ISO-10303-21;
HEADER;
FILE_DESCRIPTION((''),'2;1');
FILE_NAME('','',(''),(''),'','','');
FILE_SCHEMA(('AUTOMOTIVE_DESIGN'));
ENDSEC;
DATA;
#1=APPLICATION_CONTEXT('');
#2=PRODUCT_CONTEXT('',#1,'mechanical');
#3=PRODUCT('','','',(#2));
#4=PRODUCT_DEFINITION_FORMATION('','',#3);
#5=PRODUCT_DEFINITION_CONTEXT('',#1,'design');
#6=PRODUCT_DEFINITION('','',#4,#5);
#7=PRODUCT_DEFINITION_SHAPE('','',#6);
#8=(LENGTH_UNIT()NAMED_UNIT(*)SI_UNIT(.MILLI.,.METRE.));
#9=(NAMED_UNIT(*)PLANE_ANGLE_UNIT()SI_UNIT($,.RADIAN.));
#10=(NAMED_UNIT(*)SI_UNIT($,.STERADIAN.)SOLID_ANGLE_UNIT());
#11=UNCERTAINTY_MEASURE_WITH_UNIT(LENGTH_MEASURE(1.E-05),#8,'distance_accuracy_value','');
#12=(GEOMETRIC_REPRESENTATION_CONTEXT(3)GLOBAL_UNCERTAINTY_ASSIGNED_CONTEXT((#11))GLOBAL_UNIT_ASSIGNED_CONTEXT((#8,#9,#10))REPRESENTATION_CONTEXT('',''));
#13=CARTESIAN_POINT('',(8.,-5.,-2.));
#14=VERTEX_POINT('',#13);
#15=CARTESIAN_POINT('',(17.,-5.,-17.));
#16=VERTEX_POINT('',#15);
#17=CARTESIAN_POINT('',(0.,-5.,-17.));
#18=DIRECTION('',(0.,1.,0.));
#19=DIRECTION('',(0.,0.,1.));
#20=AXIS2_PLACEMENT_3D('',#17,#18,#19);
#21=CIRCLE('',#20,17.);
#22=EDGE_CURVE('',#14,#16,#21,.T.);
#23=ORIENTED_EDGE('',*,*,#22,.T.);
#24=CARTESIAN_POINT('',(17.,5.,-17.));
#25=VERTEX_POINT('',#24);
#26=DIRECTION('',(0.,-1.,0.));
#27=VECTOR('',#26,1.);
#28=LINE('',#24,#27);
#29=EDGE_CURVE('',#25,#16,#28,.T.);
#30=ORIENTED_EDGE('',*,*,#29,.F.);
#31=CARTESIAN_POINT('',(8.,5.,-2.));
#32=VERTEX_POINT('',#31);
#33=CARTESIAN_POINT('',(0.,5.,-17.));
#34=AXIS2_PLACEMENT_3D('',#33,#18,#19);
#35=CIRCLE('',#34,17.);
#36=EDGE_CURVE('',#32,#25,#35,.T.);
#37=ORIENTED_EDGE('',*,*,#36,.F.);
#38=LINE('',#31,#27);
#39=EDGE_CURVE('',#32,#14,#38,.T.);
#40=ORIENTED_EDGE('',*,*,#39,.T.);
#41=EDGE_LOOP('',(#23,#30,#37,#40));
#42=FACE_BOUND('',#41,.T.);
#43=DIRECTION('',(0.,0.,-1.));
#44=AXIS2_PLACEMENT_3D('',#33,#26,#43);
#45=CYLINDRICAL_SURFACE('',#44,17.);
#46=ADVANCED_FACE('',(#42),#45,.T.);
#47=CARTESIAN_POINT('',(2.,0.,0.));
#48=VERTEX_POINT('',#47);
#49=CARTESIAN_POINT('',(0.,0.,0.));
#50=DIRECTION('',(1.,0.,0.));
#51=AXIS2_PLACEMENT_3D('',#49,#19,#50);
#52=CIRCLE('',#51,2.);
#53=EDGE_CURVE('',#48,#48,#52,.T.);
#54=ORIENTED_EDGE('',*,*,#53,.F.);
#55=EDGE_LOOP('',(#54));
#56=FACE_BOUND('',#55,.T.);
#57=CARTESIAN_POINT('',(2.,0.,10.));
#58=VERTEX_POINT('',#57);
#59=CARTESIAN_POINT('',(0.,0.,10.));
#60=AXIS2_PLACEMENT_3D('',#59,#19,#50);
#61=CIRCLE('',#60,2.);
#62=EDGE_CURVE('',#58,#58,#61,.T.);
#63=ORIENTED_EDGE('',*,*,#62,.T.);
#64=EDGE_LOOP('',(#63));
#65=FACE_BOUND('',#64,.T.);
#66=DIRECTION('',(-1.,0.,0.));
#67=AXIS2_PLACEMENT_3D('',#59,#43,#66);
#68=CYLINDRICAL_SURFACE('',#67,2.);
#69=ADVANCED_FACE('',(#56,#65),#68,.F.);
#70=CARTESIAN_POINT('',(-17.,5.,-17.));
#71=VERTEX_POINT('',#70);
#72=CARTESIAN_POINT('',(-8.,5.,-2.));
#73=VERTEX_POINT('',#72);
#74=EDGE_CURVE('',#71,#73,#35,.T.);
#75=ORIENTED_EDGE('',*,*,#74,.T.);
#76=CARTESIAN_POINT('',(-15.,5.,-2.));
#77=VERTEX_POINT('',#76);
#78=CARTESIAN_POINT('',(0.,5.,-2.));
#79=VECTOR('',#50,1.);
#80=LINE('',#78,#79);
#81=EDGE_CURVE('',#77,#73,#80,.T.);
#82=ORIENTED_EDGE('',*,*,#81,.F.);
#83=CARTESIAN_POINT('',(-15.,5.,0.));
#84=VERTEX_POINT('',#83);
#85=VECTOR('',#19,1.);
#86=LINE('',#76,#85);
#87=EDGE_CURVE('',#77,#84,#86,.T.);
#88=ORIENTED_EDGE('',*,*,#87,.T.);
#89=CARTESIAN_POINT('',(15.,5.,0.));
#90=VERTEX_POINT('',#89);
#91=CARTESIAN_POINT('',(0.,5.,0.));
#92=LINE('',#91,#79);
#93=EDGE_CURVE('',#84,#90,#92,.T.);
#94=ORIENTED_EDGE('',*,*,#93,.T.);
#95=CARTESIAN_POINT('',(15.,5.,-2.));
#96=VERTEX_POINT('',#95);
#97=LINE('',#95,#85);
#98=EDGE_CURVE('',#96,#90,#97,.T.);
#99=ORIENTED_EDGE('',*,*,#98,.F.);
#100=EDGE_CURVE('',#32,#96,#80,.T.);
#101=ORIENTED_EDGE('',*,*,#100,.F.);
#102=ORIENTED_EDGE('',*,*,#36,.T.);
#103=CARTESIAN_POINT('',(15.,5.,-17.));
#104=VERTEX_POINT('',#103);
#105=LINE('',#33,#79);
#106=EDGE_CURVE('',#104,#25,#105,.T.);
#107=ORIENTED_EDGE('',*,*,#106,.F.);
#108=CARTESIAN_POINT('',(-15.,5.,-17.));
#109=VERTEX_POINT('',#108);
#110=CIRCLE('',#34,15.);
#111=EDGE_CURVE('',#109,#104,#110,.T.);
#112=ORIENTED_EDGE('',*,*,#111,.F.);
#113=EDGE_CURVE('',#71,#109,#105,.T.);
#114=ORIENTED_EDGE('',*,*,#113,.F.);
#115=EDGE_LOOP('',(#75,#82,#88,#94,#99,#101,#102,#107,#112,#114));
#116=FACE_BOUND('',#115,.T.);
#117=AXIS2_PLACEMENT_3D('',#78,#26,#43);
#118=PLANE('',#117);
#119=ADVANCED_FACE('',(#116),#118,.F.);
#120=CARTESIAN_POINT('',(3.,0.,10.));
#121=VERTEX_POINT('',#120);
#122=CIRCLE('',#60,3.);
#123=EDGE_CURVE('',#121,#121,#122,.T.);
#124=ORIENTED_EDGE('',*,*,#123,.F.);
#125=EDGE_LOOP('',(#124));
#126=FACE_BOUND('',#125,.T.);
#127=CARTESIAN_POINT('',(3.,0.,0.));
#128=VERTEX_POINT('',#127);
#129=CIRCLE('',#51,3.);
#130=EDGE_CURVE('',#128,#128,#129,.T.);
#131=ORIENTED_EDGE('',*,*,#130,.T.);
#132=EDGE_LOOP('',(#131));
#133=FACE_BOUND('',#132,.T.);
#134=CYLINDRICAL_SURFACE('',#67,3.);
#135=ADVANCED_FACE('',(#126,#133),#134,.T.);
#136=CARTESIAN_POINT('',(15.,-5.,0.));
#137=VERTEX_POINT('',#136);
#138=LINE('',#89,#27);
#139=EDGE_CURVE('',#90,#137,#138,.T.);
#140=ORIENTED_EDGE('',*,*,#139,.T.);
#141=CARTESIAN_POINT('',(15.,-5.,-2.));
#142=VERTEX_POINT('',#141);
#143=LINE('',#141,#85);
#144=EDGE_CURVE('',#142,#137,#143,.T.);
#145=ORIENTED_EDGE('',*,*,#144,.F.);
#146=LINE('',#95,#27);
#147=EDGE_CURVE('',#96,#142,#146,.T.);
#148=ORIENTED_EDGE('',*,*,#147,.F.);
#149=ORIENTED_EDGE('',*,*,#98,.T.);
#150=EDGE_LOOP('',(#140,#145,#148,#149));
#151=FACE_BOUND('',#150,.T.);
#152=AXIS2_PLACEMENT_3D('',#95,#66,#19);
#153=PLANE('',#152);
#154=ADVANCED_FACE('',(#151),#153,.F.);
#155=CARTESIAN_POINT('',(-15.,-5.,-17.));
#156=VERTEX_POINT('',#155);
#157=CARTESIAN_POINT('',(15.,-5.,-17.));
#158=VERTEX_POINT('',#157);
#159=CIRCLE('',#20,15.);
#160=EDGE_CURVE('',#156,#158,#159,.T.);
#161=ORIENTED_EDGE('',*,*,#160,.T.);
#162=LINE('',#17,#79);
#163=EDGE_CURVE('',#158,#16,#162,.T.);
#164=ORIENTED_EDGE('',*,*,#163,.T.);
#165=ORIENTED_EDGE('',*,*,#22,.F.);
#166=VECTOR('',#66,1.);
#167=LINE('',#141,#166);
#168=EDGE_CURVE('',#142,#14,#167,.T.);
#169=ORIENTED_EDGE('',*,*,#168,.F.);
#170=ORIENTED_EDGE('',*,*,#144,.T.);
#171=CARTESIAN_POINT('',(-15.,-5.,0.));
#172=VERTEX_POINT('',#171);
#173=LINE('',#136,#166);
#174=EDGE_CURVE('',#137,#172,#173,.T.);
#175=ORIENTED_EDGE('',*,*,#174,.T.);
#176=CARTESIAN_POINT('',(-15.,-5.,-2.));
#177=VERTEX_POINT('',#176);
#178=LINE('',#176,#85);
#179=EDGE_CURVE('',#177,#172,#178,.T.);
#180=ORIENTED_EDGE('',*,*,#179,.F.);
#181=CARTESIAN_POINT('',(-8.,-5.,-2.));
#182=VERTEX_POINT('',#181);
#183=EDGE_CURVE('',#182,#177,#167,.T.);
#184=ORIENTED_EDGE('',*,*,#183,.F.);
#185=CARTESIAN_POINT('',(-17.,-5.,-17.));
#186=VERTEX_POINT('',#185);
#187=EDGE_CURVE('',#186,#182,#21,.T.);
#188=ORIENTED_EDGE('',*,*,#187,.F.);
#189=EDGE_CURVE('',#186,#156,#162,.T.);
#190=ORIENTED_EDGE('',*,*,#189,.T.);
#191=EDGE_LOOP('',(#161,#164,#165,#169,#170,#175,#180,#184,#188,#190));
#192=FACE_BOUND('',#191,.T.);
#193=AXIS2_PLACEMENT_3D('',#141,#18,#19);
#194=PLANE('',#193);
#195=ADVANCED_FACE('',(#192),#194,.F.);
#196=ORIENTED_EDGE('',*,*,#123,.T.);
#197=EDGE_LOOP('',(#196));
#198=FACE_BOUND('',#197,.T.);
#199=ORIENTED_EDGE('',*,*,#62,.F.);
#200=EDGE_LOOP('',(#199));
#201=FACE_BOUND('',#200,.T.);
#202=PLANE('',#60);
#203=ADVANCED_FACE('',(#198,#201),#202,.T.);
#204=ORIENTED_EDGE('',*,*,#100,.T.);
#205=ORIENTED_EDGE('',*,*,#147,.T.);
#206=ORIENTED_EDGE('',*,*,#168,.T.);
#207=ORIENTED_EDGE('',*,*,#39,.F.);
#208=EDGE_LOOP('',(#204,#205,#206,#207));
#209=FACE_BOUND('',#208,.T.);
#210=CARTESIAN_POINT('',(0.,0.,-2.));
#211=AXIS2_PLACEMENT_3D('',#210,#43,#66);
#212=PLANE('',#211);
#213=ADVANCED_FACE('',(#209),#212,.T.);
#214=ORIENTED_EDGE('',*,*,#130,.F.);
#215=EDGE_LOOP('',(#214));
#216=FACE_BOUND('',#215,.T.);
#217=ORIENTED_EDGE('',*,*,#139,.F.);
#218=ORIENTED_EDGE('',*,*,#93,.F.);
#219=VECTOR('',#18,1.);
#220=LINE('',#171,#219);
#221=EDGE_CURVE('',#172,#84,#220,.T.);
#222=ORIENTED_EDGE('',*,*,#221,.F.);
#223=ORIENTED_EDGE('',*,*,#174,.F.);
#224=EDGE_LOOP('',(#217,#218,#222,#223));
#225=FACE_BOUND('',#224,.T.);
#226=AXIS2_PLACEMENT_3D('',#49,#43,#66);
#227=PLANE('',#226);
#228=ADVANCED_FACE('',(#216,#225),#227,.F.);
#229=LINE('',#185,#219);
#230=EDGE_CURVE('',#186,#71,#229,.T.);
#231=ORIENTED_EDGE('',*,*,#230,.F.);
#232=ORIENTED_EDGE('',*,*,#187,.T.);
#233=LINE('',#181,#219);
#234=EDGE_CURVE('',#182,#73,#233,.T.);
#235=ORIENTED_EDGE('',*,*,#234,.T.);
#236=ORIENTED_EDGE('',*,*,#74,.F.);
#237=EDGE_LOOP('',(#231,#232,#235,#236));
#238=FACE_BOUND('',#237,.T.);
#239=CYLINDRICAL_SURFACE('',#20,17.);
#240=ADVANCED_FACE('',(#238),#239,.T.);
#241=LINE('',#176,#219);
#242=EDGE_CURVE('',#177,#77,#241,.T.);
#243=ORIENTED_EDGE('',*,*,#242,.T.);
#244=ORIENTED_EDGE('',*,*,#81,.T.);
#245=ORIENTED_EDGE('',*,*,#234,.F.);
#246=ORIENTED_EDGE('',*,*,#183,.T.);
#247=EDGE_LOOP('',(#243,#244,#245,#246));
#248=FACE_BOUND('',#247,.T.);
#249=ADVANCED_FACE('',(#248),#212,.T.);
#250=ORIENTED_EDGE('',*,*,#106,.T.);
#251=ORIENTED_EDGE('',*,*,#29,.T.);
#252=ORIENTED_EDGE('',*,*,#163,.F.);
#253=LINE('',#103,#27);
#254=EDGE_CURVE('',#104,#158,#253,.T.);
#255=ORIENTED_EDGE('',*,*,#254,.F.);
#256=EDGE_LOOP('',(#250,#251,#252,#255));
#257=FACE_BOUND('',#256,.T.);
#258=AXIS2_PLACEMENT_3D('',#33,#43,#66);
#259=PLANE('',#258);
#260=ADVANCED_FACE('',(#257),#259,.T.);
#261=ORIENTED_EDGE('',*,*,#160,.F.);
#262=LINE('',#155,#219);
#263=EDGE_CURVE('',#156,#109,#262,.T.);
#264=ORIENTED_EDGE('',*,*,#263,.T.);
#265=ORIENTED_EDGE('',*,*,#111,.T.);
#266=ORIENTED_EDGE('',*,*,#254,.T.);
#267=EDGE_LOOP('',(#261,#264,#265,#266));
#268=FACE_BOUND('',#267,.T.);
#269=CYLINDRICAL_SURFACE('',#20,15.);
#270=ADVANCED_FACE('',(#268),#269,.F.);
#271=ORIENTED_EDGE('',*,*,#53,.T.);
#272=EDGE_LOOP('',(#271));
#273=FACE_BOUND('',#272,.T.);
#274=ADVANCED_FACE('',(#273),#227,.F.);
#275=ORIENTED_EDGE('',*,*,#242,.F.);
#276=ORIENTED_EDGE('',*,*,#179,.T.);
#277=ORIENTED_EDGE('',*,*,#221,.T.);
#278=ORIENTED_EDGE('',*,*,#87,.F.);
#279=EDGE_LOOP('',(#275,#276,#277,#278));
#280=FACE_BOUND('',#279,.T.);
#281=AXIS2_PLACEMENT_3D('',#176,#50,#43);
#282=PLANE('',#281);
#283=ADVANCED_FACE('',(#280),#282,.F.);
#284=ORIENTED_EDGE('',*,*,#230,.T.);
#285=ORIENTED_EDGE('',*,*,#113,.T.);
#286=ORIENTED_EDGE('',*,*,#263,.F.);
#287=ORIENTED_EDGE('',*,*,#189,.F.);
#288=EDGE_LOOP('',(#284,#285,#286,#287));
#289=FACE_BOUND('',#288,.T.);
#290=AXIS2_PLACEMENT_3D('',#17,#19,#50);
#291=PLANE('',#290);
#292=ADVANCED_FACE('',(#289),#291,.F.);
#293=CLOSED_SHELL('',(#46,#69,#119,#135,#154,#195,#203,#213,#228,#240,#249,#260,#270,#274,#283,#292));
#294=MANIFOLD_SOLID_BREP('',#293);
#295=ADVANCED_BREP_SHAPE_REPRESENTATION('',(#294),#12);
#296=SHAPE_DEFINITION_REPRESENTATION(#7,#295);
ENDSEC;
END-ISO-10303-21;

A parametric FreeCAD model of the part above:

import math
import FreeCAD as App
import Part
import Sketcher

V = App.Vector

doc = App.newDocument("Part")
body = doc.addObject("PartDesign::Body", "Body")

# Sketch on XY plane
sketch1 = doc.addObject("Sketcher::SketchObject", "Sketch")
body.addObject(sketch1)
sketch1.AttachmentSupport = (doc.XY_Plane, [""])
sketch1.MapMode = "FlatFace"
sketch1.addGeometry([
    Part.Circle(V(0, 0, 0), V(0, 0, 1), 3),
    Part.Circle(V(0, 0, 0), V(0, 0, 1), 2),
], False)
sketch1.addConstraint([
    Sketcher.Constraint("Coincident", 0, 3, -1, 1),
    Sketcher.Constraint("Coincident", 1, 3, -1, 1),
    Sketcher.Constraint("Diameter", 0, 6.0),
    Sketcher.Constraint("Diameter", 1, 4.0),
])
pad1 = doc.addObject("PartDesign::Pad", "Pad")
body.addObject(pad1)
pad1.Profile = sketch1
pad1.Length = 10

# Sketch on XY plane
sketch2 = doc.addObject("Sketcher::SketchObject", "Sketch001")
body.addObject(sketch2)
sketch2.AttachmentSupport = (doc.XY_Plane, [""])
sketch2.MapMode = "FlatFace"
sketch2.addGeometry([
    Part.LineSegment(V(-15, 5, 0), V(15, 5, 0)),
    Part.LineSegment(V(15, 5, 0), V(15, -5, 0)),
    Part.LineSegment(V(15, -5, 0), V(-15, -5, 0)),
    Part.LineSegment(V(-15, -5, 0), V(-15, 5, 0)),
], False)
sketch2.addConstraint([
    Sketcher.Constraint("Coincident", 0, 2, 1, 1),
    Sketcher.Constraint("Coincident", 1, 2, 2, 1),
    Sketcher.Constraint("Coincident", 2, 2, 3, 1),
    Sketcher.Constraint("Coincident", 3, 2, 0, 1),
    Sketcher.Constraint("Horizontal", 0),
    Sketcher.Constraint("Vertical", 1),
    Sketcher.Constraint("Horizontal", 2),
    Sketcher.Constraint("Vertical", 3),
    Sketcher.Constraint("Symmetric", 0, 2, 2, 2, -1, 1),
    Sketcher.Constraint("DistanceX", 0, 1, 0, 2, 30.0),
    Sketcher.Constraint("DistanceY", 1, 2, 1, 1, 10.0),
])
pad2 = doc.addObject("PartDesign::Pad", "Pad001")
body.addObject(pad2)
pad2.Profile = sketch2
pad2.Length = 2
pad2.Reversed = True

# Sketch on XZ plane
sketch3 = doc.addObject("Sketcher::SketchObject", "Sketch002")
body.addObject(sketch3)
sketch3.AttachmentSupport = (doc.XZ_Plane, [""])
sketch3.MapMode = "FlatFace"
sketch3.addGeometry([
    Part.ArcOfCircle(Part.Circle(V(0, -17, 0), V(0, 0, 1), 17), math.radians(118), math.radians(180)),  # 0
    Part.LineSegment(V(-8, -2, 0), V(0, -2, 0)),  # 1
    Part.ArcOfCircle(Part.Circle(V(0, -17, 0), V(0, 0, 1), 15), math.radians(90), math.radians(180)),  # 2
    Part.LineSegment(V(-15, -17, 0), V(-17, -17, 0)),  # 3
    Part.ArcOfCircle(Part.Circle(V(0, -17, 0), V(0, 0, 1), 15), math.radians(0), math.radians(90)),  # 4
    Part.LineSegment(V(0, -2, 0), V(8, -2, 0)),  # 5
    Part.ArcOfCircle(Part.Circle(V(0, -17, 0), V(0, 0, 1), 17), math.radians(0), math.radians(62)),  # 6
    Part.LineSegment(V(17, -17, 0), V(15, -17, 0)),  # 7
], False)
sketch3.addConstraint([
    Sketcher.Constraint("Coincident", 0, 1, 1, 1),
    Sketcher.Constraint("Tangent", 1, 2, 2, 1),
    Sketcher.Constraint("Coincident", 2, 2, 3, 1),
    Sketcher.Constraint("Coincident", 3, 2, 0, 2),
    Sketcher.Constraint("Tangent", 4, 2, 5, 1),
    Sketcher.Constraint("Coincident", 5, 2, 6, 2),
    Sketcher.Constraint("Coincident", 6, 1, 7, 1),
    Sketcher.Constraint("Coincident", 7, 2, 4, 1),
    Sketcher.Constraint("Horizontal", 1),
    Sketcher.Constraint("Horizontal", 3),
    Sketcher.Constraint("Horizontal", 5),
    Sketcher.Constraint("Horizontal", 7),
    Sketcher.Constraint("Coincident", 2, 3, 0, 3),
    Sketcher.Constraint("Coincident", 4, 3, 0, 3),
    Sketcher.Constraint("Coincident", 6, 3, 0, 3),
    Sketcher.Constraint("Equal", 2, 4),
    Sketcher.Constraint("Equal", 0, 6),
    Sketcher.Constraint("Symmetric", 3, 2, 6, 1, -2),
    Sketcher.Constraint("Horizontal", 6, 3, 2, 2),
    Sketcher.Constraint("Radius", 0, 17.0),
    Sketcher.Constraint("Radius", 2, 15.0),
    Sketcher.Constraint("DistanceY", 0, 3, -1, 1, 17.0),
])
pad3 = doc.addObject("PartDesign::Pad", "Pad002")
body.addObject(pad3)
pad3.Profile = sketch3
pad3.Type = "TwoLengths"
pad3.Length = 5
pad3.Length2 = 5
pad3.Reversed = True

doc.recompute()
